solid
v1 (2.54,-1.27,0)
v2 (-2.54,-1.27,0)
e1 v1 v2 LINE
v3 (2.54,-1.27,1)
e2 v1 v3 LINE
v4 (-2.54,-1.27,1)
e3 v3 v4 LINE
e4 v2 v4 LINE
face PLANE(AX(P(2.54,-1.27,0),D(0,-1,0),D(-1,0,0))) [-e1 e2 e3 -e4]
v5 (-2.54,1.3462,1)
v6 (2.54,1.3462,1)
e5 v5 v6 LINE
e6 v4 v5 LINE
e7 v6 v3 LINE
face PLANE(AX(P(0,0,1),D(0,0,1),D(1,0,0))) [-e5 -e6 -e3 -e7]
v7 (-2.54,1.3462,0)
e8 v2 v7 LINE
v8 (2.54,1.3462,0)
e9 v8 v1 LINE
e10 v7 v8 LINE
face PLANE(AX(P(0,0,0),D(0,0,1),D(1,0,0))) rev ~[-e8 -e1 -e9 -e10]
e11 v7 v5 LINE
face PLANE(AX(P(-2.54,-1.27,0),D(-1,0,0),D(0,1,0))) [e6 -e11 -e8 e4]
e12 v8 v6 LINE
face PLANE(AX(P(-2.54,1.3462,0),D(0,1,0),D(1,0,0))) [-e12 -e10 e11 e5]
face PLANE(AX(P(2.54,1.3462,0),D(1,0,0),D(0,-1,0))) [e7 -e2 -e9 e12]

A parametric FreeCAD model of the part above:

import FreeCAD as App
import Part
import Sketcher

V = App.Vector
Q = App.Units.Quantity

doc = App.newDocument("Part")
body = doc.addObject("PartDesign::Body", "Body")

sketch1 = doc.addObject("Sketcher::SketchObject", "Sketch")
body.addObject(sketch1)
sketch1.AttachmentSupport = (doc.XY_Plane, [""])
sketch1.MapMode = "FlatFace"
sketch1.addGeometry([
    Part.LineSegment(V(2.5, 1.3, 0), V(-2.5, 1.3, 0)),
    Part.LineSegment(V(-2.5, 1.3, 0), V(-2.5, -1.3, 0)),
    Part.LineSegment(V(-2.5, -1.3, 0), V(2.5, -1.3, 0)),
    Part.LineSegment(V(2.5, -1.3, 0), V(2.5, 1.3, 0)),
], False)
sketch1.addConstraint([
    Sketcher.Constraint("Coincident", 0, 2, 1, 1),
    Sketcher.Constraint("Coincident", 1, 2, 2, 1),
    Sketcher.Constraint("Coincident", 2, 2, 3, 1),
    Sketcher.Constraint("Coincident", 3, 2, 0, 1),
    Sketcher.Constraint("Horizontal", 0),
    Sketcher.Constraint("Vertical", 1),
    Sketcher.Constraint("Horizontal", 2),
    Sketcher.Constraint("Vertical", 3),
    Sketcher.Constraint("DistanceX", 0, 2, 0, 1, Q("0.2 in")),
    Sketcher.Constraint("DistanceX", 0, 2, -1, 1, Q("0.1 in")),
    Sketcher.Constraint("DistanceY", 1, 2, 1, 1, Q("0.103 in")),
    Sketcher.Constraint("DistanceY", 1, 2, -1, 1, Q("0.05 in")),
])
pad1 = doc.addObject("PartDesign::Pad", "Pad")
body.addObject(pad1)
pad1.Profile = sketch1
pad1.Length = 1

doc.recompute()
